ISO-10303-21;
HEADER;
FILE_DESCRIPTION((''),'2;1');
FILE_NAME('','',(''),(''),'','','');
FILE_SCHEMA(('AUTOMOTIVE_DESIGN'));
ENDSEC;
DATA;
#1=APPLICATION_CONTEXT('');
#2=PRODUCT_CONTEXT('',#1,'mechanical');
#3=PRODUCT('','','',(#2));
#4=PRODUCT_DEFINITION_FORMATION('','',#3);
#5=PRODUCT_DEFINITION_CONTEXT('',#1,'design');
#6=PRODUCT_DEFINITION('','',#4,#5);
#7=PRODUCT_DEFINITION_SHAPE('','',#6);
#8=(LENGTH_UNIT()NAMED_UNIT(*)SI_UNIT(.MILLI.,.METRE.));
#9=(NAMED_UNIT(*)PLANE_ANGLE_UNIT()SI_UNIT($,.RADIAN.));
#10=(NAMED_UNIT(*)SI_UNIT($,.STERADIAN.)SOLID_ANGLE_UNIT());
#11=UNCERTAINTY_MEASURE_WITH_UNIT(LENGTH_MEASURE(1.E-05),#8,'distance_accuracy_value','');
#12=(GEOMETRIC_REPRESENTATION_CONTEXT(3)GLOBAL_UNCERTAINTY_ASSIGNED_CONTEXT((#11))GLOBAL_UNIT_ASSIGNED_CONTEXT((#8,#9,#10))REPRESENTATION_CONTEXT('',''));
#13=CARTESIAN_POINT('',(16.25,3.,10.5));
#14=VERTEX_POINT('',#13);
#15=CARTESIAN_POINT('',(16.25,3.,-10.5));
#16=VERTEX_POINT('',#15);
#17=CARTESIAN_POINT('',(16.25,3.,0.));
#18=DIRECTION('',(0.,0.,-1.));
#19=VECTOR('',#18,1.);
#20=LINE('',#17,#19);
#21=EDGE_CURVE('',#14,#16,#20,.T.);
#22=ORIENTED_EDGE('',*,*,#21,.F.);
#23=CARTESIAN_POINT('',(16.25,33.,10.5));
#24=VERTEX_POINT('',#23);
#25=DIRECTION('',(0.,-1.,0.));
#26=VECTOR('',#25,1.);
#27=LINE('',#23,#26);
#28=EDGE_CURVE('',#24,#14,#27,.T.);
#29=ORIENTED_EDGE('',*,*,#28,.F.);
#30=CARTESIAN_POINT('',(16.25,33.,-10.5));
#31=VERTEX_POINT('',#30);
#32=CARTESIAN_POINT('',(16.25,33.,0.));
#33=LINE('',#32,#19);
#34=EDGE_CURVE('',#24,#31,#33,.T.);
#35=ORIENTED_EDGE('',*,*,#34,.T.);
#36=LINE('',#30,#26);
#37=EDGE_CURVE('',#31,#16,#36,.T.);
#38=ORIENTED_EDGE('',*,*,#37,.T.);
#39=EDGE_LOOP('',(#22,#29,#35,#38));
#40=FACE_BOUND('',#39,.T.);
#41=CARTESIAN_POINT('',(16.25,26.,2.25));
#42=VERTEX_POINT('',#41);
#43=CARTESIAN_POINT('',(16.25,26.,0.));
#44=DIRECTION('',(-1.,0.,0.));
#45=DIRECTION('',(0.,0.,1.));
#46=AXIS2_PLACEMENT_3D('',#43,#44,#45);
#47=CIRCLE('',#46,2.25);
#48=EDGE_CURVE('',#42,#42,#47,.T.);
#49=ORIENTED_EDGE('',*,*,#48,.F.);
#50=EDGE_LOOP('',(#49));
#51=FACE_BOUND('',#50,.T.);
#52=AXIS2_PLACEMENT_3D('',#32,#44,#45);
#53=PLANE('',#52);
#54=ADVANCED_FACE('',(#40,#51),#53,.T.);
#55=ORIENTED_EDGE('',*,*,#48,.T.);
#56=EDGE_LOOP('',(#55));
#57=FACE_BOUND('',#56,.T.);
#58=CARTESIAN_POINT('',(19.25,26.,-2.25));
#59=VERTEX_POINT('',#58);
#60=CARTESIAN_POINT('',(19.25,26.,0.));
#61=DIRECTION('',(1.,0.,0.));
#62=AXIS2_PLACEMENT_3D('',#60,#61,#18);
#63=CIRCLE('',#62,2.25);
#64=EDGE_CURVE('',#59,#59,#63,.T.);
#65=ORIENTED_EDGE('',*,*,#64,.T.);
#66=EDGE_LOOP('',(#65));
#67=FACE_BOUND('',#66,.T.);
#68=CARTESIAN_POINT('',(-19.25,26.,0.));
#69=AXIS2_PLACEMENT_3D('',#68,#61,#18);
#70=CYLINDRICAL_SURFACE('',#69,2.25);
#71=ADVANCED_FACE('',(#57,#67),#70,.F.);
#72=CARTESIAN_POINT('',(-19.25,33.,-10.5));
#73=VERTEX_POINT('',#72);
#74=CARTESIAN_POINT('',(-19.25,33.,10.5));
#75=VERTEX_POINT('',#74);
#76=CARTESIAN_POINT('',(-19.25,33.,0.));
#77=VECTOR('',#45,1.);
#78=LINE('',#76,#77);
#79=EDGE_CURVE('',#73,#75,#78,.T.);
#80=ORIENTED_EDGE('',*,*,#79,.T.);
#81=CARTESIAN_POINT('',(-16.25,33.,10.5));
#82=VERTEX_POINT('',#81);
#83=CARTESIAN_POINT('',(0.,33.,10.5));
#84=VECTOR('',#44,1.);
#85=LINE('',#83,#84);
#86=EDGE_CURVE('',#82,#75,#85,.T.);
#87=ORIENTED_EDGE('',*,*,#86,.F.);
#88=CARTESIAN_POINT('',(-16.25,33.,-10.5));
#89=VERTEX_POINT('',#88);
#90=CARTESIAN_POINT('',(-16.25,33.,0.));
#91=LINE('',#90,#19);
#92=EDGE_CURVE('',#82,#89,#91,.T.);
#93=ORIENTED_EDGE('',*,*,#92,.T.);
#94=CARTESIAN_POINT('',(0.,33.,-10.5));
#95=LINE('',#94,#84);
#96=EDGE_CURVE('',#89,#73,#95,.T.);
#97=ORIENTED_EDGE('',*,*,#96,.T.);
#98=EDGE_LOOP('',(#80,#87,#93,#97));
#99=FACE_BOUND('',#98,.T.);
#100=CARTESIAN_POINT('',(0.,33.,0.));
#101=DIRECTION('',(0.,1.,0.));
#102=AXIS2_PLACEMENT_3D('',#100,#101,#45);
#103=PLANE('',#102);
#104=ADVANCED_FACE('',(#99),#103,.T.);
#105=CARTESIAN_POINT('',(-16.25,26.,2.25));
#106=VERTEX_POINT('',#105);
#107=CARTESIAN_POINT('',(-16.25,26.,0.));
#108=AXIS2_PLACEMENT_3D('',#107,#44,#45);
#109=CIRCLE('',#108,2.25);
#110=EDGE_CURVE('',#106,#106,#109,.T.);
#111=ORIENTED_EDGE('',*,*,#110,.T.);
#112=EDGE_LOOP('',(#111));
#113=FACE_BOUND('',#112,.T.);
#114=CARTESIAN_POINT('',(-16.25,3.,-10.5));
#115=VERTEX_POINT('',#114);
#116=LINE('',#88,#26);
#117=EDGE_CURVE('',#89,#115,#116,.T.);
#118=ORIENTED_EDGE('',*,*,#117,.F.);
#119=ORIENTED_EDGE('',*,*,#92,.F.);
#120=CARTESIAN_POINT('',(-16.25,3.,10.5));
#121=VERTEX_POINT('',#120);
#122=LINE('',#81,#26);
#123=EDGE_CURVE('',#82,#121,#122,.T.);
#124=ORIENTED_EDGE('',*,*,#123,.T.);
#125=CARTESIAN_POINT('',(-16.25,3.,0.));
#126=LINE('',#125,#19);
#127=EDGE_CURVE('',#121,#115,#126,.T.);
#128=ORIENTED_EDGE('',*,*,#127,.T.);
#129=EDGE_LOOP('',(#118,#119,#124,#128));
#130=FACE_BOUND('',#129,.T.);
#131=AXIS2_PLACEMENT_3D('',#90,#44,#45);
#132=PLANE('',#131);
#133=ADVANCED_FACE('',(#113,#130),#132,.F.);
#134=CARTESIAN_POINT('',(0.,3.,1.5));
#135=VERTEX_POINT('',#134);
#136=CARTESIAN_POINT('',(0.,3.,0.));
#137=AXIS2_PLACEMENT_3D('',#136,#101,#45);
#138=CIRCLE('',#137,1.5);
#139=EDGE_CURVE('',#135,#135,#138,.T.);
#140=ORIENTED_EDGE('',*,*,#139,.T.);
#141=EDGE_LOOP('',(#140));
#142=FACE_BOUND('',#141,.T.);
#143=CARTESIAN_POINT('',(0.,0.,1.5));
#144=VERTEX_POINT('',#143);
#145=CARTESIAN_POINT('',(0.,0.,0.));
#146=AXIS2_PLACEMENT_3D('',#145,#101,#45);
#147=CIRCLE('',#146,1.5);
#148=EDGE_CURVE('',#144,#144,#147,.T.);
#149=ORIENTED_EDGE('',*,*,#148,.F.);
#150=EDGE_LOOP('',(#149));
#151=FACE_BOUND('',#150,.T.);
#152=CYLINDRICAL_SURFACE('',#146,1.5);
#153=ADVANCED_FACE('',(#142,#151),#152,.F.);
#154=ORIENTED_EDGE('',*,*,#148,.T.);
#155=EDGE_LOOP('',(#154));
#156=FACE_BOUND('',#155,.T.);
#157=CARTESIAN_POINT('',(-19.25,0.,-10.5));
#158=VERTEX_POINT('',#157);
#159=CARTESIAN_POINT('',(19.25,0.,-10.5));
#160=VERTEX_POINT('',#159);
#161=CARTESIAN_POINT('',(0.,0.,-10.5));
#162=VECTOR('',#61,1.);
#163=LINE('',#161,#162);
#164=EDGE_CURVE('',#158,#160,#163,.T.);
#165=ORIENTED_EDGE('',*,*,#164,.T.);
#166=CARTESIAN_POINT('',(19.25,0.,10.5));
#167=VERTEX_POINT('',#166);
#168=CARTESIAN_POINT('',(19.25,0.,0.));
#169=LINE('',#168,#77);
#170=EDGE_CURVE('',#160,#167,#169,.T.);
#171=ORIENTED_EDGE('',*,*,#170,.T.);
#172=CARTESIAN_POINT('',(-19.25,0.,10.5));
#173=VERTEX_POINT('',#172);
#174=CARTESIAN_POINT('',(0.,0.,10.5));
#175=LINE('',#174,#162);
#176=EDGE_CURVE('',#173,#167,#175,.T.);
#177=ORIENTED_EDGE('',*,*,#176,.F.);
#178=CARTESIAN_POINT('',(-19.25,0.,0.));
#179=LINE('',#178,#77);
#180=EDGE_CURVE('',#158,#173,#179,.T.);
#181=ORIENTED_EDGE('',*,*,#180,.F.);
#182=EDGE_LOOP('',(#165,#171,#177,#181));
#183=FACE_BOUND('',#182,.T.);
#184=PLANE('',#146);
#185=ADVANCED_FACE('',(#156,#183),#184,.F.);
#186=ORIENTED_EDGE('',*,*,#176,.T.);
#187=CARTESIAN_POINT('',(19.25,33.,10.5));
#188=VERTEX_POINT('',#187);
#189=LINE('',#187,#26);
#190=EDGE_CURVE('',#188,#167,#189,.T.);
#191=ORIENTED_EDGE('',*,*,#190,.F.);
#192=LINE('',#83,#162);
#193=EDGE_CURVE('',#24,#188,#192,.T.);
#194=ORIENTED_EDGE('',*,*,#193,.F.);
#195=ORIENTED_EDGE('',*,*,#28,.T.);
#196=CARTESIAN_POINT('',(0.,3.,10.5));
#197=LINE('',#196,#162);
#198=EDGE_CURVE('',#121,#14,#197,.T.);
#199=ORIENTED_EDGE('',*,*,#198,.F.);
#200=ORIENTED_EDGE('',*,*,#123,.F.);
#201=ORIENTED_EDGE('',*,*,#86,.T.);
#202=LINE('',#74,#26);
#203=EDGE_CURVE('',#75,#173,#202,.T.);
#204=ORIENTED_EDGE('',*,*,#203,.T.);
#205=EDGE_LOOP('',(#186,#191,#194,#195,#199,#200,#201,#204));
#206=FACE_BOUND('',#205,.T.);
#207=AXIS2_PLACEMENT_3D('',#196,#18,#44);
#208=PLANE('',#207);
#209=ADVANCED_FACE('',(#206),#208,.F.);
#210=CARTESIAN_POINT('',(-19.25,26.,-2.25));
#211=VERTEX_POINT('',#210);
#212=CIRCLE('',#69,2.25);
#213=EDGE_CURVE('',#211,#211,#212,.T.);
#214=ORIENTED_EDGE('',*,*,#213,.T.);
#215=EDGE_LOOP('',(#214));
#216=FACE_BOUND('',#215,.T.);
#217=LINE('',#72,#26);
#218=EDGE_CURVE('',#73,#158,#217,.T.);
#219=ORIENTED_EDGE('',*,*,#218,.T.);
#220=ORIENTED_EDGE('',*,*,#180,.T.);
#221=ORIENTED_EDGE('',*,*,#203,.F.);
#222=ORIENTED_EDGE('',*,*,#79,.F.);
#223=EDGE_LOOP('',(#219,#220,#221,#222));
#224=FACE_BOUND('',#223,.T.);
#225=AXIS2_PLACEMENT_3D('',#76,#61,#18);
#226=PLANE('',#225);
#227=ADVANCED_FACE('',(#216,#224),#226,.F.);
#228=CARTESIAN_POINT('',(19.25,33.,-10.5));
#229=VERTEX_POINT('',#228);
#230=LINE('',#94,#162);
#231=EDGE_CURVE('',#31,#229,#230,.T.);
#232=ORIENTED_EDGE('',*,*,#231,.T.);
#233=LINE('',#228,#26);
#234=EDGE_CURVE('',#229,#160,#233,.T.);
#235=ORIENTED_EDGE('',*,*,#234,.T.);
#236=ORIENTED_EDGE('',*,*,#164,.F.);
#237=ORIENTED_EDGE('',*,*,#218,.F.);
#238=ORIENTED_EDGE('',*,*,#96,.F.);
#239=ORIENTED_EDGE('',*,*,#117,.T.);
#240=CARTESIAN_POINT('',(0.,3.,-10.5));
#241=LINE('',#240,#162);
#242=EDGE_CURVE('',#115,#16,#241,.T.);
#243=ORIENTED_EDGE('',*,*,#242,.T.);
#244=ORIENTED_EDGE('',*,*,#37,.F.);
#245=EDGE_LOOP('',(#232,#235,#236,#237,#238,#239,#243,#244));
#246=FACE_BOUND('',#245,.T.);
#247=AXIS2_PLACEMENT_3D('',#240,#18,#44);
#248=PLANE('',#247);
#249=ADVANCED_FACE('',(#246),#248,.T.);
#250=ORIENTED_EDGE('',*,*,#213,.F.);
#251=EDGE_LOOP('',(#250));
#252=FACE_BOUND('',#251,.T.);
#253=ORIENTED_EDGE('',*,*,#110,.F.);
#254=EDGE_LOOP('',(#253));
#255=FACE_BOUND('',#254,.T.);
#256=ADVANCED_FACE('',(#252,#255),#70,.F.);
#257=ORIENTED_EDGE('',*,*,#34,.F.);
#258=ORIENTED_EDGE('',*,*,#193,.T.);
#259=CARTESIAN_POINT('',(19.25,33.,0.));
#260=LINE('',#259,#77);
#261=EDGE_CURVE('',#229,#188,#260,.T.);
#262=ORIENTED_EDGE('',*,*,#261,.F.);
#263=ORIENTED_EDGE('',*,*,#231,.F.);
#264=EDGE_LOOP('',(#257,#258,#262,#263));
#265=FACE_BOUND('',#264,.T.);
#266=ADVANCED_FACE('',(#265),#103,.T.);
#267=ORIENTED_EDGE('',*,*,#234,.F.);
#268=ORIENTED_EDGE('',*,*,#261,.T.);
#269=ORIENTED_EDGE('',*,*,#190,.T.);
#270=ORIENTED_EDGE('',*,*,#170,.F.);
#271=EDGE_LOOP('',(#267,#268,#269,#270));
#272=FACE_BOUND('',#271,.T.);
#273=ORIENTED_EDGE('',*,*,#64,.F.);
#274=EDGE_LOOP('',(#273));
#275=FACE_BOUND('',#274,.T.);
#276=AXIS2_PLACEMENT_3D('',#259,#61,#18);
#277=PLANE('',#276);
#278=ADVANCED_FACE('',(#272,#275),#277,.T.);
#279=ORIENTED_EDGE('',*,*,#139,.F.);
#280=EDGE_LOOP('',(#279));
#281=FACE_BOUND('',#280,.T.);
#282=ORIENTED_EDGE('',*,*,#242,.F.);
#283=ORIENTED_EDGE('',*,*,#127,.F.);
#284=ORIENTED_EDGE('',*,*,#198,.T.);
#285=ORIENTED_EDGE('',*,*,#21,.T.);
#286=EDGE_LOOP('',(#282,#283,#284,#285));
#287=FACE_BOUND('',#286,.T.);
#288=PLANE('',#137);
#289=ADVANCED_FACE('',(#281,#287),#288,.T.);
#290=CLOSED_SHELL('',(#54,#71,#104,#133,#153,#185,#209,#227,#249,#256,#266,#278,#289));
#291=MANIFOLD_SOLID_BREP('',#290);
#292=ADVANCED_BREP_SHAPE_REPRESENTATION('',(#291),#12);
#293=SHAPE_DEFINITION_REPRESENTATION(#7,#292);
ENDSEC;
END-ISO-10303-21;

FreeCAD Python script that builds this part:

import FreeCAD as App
import Part
import Sketcher
from FreeCAD import Vector


def add_polygon(sketch, points):
    """Adds a closed chain of lines whose ends are joined by coincident constraints."""
    first, n = sketch.GeometryCount, len(points)
    for a, b in zip(points, points[1:] + points[:1]):
        sketch.addGeometry(Part.LineSegment(App.Vector(*a, 0), App.Vector(*b, 0)), False)
    for i in range(n):
        sketch.addConstraint(Sketcher.Constraint("Coincident", first + i, 2, first + (i + 1) % n, 1))

doc = App.newDocument("Part")
body = doc.addObject("PartDesign::Body", "Body")

# Sketch on XZ plane
sketch1 = body.newObject("Sketcher::SketchObject", "Sketch")
sketch1.AttachmentSupport = (doc.getObject("XZ_Plane"), [""])
sketch1.MapMode = "FlatFace"
add_polygon(sketch1, [(-16, -10), (-16, 10), (16, 10), (16, -10)])  # lines 0-3
sketch1.addConstraint([
    Sketcher.Constraint("Vertical", 0),
    Sketcher.Constraint("Horizontal", 1),
    Sketcher.Constraint("Vertical", 2),
    Sketcher.Constraint("Horizontal", 3),
    Sketcher.Constraint("Symmetric", 0, 2, 2, 2, -1, 1),
    Sketcher.Constraint("DistanceY", 0, 1, 0, 2, 21.0),
    Sketcher.Constraint("DistanceX", 1, 1, 1, 2, 32.5),
])
pad1 = body.newObject("PartDesign::Pad", "Pad")
pad1.Profile = sketch1
pad1.Length = 3
pad1.Reversed = True

# Sketch on XZ plane
sketch2 = body.newObject("Sketcher::SketchObject", "Sketch001")
sketch2.AttachmentSupport = (doc.getObject("XZ_Plane"), [""])
sketch2.MapMode = "FlatFace"
add_polygon(sketch2, [(-19.2, -10.5), (-19.2, 10.5), (-16.2, 10.5), (-16.2, -10.5)])  # lines 0-3
add_polygon(sketch2, [(16.2, -10.5), (16.2, 10.5), (19.2, 10.5), (19.2, -10.5)])  # lines 4-7
sketch2.addConstraint([
    Sketcher.Constraint("Vertical", 0),
    Sketcher.Constraint("Horizontal", 1),
    Sketcher.Constraint("Vertical", 2),
    Sketcher.Constraint("Horizontal", 3),
    Sketcher.Constraint("Vertical", 4),
    Sketcher.Constraint("Horizontal", 5),
    Sketcher.Constraint("Vertical", 6),
    Sketcher.Constraint("Horizontal", 7),
    Sketcher.Constraint("Symmetric", 2, 2, 4, 2, -1, 1),
    Sketcher.Constraint("Symmetric", 0, 2, 6, 2, -1, 1),
    Sketcher.Constraint("Horizontal", 1, 2, 4, 2),
    Sketcher.Constraint("DistanceX", 1, 1, 1, 2, 3.0),
    Sketcher.Constraint("DistanceY", 0, 1, 0, 2, 21.0),
    Sketcher.Constraint("DistanceX", 1, 2, 4, 2, 32.5),
])
pad2 = body.newObject("PartDesign::Pad", "Pad001")
pad2.Profile = sketch2
pad2.Length = 33
pad2.Reversed = True

# Sketch on YZ plane
sketch3 = body.newObject("Sketcher::SketchObject", "Sketch002")
sketch3.AttachmentSupport = (doc.getObject("YZ_Plane"), [""])
sketch3.MapMode = "FlatFace"
sketch3.AttachmentOffset = App.Placement(Vector(0, 0, 19.25), App.Rotation())
sketch3.addGeometry(Part.Circle(Vector(26, 0, 0), Vector(0, 0, 1), 2.2), False)
sketch3.addConstraint([
    Sketcher.Constraint("PointOnObject", 0, 3, -1),
    Sketcher.Constraint("Diameter", 0, 4.5),
    Sketcher.Constraint("DistanceX", -1, 1, 0, 3, 26.0),
])
pocket1 = body.newObject("PartDesign::Pocket", "Pocket")
pocket1.Profile = sketch3
pocket1.Type = "ThroughAll"

# Sketch on XZ plane
sketch4 = body.newObject("Sketcher::SketchObject", "Sketch003")
sketch4.AttachmentSupport = (doc.getObject("XZ_Plane"), [""])
sketch4.MapMode = "FlatFace"
sketch4.AttachmentOffset = App.Placement(Vector(0, 0, -3), App.Rotation())
sketch4.addGeometry(Part.Circle(Vector(0, 0, 0), Vector(0, 0, 1), 1.5), False)
sketch4.addConstraint([
    Sketcher.Constraint("Coincident", 0, 3, -1, 1),
    Sketcher.Constraint("Diameter", 0, 3.0),
])
pocket2 = body.newObject("PartDesign::Pocket", "Pocket001")
pocket2.Profile = sketch4
pocket2.Type = "ThroughAll"
pocket2.Reversed = True

doc.recompute()
